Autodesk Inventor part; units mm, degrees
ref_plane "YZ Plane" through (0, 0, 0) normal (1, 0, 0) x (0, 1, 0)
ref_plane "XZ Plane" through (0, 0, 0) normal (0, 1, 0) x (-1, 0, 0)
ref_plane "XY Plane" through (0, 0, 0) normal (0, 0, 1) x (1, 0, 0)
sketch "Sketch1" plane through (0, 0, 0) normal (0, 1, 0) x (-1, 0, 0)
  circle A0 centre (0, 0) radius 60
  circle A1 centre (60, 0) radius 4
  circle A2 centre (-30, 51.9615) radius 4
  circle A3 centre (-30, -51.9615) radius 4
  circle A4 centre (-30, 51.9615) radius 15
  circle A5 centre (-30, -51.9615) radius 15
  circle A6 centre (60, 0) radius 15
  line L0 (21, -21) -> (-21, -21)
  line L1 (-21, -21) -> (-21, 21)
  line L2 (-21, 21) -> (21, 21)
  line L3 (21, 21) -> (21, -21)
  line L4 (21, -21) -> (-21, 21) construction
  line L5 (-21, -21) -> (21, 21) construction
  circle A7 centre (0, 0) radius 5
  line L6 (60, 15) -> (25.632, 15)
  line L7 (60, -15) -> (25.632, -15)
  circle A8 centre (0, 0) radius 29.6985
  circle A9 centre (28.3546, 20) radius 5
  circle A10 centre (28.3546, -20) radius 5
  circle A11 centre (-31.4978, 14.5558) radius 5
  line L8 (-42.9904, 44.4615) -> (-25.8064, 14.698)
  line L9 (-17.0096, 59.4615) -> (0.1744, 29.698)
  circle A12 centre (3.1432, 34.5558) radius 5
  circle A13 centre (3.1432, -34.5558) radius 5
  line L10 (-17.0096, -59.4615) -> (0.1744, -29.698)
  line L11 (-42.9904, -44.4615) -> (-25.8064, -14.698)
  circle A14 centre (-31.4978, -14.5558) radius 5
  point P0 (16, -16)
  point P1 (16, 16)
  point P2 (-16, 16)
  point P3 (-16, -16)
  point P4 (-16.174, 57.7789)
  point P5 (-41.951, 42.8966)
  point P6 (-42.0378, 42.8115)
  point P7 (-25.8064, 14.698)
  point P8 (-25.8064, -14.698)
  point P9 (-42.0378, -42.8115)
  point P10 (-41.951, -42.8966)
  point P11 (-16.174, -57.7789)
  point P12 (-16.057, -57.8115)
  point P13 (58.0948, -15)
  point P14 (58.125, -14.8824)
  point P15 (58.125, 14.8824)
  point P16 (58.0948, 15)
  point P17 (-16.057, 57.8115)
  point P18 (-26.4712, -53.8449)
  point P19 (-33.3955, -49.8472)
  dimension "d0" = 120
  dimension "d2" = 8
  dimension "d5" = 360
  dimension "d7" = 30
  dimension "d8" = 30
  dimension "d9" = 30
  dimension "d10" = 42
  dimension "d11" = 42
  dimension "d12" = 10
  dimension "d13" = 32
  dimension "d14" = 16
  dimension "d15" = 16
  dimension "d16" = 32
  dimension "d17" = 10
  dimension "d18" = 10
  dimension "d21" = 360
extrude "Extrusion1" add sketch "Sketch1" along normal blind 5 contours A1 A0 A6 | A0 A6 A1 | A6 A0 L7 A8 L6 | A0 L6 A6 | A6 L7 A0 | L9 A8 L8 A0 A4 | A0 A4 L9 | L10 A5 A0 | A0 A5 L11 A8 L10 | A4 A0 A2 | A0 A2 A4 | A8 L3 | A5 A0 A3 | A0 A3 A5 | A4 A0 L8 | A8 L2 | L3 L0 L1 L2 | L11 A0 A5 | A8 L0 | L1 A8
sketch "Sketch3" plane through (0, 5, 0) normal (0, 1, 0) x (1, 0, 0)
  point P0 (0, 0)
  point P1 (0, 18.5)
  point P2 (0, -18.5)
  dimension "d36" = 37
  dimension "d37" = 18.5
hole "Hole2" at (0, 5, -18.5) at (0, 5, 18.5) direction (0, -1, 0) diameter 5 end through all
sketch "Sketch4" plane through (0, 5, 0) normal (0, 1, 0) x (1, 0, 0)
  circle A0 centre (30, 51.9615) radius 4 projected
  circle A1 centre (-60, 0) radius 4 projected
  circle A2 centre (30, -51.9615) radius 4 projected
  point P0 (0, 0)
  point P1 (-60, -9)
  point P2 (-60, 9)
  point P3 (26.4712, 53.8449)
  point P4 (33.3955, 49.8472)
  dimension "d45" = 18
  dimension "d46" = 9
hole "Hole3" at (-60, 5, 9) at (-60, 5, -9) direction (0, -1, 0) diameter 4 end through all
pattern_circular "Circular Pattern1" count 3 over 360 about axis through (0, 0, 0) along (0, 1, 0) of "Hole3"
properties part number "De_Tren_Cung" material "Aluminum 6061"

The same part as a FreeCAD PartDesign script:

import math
import FreeCAD as App
import Part
import Sketcher

V = App.Vector
Q = App.Units.Quantity

doc = App.newDocument("Part")
body = doc.addObject("PartDesign::Body", "Body")

# Sketch on XZ plane
sketch1 = body.newObject("Sketcher::SketchObject", "Sketch")
sketch1.AttachmentSupport = (doc.getObject("XZ_Plane"), [""])
sketch1.MapMode = "FlatFace"
sketch1.addGeometry([
    Part.LineSegment(V(-60, 15, 0), V(-25.632, 15, 0)),  # 0
    Part.ArcOfCircle(Part.Circle(V(0, 0, 0), V(0, 0, 1), 29.6985), math.radians(90.336463), math.radians(149.663573)),  # 1
    Part.LineSegment(V(-0.1744, 29.698, 0), V(17.0096, 59.4615, 0)),  # 2
    Part.ArcOfCircle(Part.Circle(V(30, 51.9615, 0), V(0, 0, 1), 15), math.radians(-29.999964), math.radians(150.000036)),  # 3
    Part.LineSegment(V(42.9904, 44.4615, 0), V(25.8064, 14.698, 0)),  # 4
    Part.ArcOfCircle(Part.Circle(V(0, 0, 0), V(0, 0, 1), 29.6985), math.radians(-29.663617), math.radians(29.663617)),  # 5
    Part.LineSegment(V(25.8064, -14.698, 0), V(42.9904, -44.4615, 0)),  # 6
    Part.ArcOfCircle(Part.Circle(V(30, -51.9615, 0), V(0, 0, 1), 15), math.radians(-150.000036), math.radians(29.999964)),  # 7
    Part.LineSegment(V(17.0096, -59.4615, 0), V(-0.1744, -29.698, 0)),  # 8
    Part.ArcOfCircle(Part.Circle(V(0, 0, 0), V(0, 0, 1), 29.6985), math.radians(-149.663573), math.radians(-90.336463)),  # 9
    Part.LineSegment(V(-25.632, -15, 0), V(-60, -15, 0)),  # 10
    Part.ArcOfCircle(Part.Circle(V(-60, 0, 0), V(0, 0, 1), 15), math.radians(90), math.radians(270)),  # 11
    Part.Circle(V(-60, 0, 0), V(0, 0, 1), 4),  # 12
    Part.Circle(V(0, 0, 0), V(0, 0, 1), 5),  # 13
    Part.Circle(V(30, -51.9615, 0), V(0, 0, 1), 4),  # 14
    Part.Circle(V(30, 51.9615, 0), V(0, 0, 1), 4),  # 15
], False)
sketch1.addConstraint([
    Sketcher.Constraint("Coincident", 0, 2, 1, 2),
    Sketcher.Constraint("Coincident", 1, 1, 2, 1),
    Sketcher.Constraint("Tangent", 2, 2, 3, 2),
    Sketcher.Constraint("Tangent", 3, 1, 4, 1),
    Sketcher.Constraint("Coincident", 4, 2, 5, 2),
    Sketcher.Constraint("Coincident", 5, 1, 6, 1),
    Sketcher.Constraint("Tangent", 6, 2, 7, 2),
    Sketcher.Constraint("Tangent", 7, 1, 8, 1),
    Sketcher.Constraint("Coincident", 8, 2, 9, 2),
    Sketcher.Constraint("Coincident", 9, 1, 10, 1),
    Sketcher.Constraint("Tangent", 10, 2, 11, 2),
    Sketcher.Constraint("Tangent", 11, 1, 0, 1),
    Sketcher.Constraint("Horizontal", 0),
    Sketcher.Constraint("Horizontal", 10),
    Sketcher.Constraint("Coincident", 1, 3, -1, 1),
    Sketcher.Constraint("Coincident", 5, 3, -1, 1),
    Sketcher.Constraint("Coincident", 9, 3, -1, 1),
    Sketcher.Constraint("Coincident", 13, 3, -1, 1),
    Sketcher.Constraint("Coincident", 12, 3, 11, 3),
    Sketcher.Constraint("Coincident", 14, 3, 7, 3),
    Sketcher.Constraint("Coincident", 15, 3, 3, 3),
    Sketcher.Constraint("Equal", 1, 5),
    Sketcher.Constraint("Equal", 3, 7),
    Sketcher.Constraint("Equal", 5, 9),
    Sketcher.Constraint("Equal", 7, 11),
    Sketcher.Constraint("Equal", 12, 14),
    Sketcher.Constraint("Equal", 14, 15),
    Sketcher.Constraint("Symmetric", 3, 3, 7, 3, -1),
    Sketcher.Constraint("PointOnObject", 11, 3, -1),
    Sketcher.Constraint("Parallel", 2, 4),
    Sketcher.Constraint("Parallel", 6, 8),
    Sketcher.Constraint("Vertical", 4, 2, 5, 1),
    Sketcher.Constraint("Equal", 2, 4),
    Sketcher.Constraint("Diameter", 12, 8.0),
    Sketcher.Constraint("Diameter", 13, 10.0),
    Sketcher.Constraint("Radius", 3, 15.0),
    Sketcher.Constraint("Angle", 4, Q("-120 deg")),
    Sketcher.Constraint("DistanceX", -1, 1, 3, 3, 30.0),
    Sketcher.Constraint("DistanceX", 11, 3, -1, 1, 60.0),
    Sketcher.Constraint("Radius", 1, 29.6985),
])
pad1 = body.newObject("PartDesign::Pad", "Pad")
pad1.Profile = sketch1
pad1.Length = 5
pad1.Reversed = True

# Sketch on XZ plane
sketch2 = body.newObject("Sketcher::SketchObject", "Sketch001")
sketch2.AttachmentSupport = (doc.getObject("XZ_Plane"), [""])
sketch2.MapMode = "FlatFace"
sketch2.AttachmentOffset = App.Placement(V(0, 0, -5), App.Rotation())
sketch2.addGeometry([
    Part.Circle(V(0, -18.5, 0), V(0, 0, 1), 2.5),
    Part.Circle(V(0, 18.5, 0), V(0, 0, 1), 2.5),
], False)
sketch2.addConstraint([
    Sketcher.Constraint("Equal", 0, 1),
    Sketcher.Constraint("Symmetric", 0, 3, 1, 3, -1, 1),
    Sketcher.Constraint("PointOnObject", 0, 3, -2),
    Sketcher.Constraint("Diameter", 0, 5.0),
    Sketcher.Constraint("DistanceY", 0, 3, 1, 3, 37.0),
])
doc.recompute()
hole = body.newObject("PartDesign::Hole", "Hole")
hole.Profile = sketch2
hole.ThreadType = "None"
hole.Diameter = 5
hole.DepthType = "ThroughAll"
hole.Reversed = True

# Sketch on XZ plane
sketch3 = body.newObject("Sketcher::SketchObject", "Sketch002")
sketch3.AttachmentSupport = (doc.getObject("XZ_Plane"), [""])
sketch3.MapMode = "FlatFace"
sketch3.AttachmentOffset = App.Placement(V(0, 0, -5), App.Rotation())
sketch3.addGeometry([
    Part.Circle(V(-60, 9, 0), V(0, 0, 1), 2),
    Part.Circle(V(-60, -9, 0), V(0, 0, 1), 2),
], False)
sketch3.addConstraint([
    Sketcher.Constraint("Equal", 0, 1),
    Sketcher.Constraint("Symmetric", 0, 3, 1, 3, -1),
    Sketcher.Constraint("Diameter", 0, 4.0),
    Sketcher.Constraint("DistanceX", 0, 3, -1, 1, 60.0),
    Sketcher.Constraint("DistanceY", -1, 1, 0, 3, 9.0),
])
doc.recompute()
hole2 = body.newObject("PartDesign::Hole", "Hole001")
hole2.Profile = sketch3
hole2.ThreadType = "None"
hole2.Diameter = 4
hole2.DepthType = "ThroughAll"
hole2.Reversed = True
doc.recompute()

polarpattern = body.newObject("PartDesign::PolarPattern", "PolarPattern")
polarpattern.Originals = [hole2]
polarpattern.Axis = (doc.getObject("Y_Axis"), [""])
polarpattern.Angle = 360
polarpattern.Occurrences = 3
body.Tip = polarpattern

doc.recompute()
